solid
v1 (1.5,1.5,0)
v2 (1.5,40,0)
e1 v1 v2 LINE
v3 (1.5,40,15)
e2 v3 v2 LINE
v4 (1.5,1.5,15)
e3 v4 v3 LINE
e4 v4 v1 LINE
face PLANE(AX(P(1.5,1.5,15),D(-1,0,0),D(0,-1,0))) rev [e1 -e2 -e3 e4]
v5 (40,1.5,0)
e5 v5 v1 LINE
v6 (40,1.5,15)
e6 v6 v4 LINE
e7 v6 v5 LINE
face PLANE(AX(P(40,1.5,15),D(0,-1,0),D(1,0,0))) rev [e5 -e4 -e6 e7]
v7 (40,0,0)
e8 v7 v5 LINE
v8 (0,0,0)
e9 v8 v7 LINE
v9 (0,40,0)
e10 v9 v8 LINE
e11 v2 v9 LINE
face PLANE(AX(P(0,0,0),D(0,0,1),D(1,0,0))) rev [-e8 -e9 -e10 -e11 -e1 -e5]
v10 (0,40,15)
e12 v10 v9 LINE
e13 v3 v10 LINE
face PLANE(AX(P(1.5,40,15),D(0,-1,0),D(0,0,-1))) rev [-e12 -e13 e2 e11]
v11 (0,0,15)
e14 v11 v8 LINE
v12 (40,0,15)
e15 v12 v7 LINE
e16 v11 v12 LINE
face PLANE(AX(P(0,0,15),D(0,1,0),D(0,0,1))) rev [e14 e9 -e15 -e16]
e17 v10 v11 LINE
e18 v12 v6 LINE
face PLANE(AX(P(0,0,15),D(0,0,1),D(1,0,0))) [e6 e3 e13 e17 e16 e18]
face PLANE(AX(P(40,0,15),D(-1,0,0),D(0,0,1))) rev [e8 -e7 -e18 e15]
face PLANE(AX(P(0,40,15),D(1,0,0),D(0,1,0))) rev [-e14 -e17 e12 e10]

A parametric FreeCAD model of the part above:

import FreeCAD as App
import Part
import Sketcher
Q = App.Units.Quantity


def add_polygon(sketch, points):
    """Adds a closed chain of lines whose ends are joined by coincident constraints."""
    first, n = sketch.GeometryCount, len(points)
    for a, b in zip(points, points[1:] + points[:1]):
        sketch.addGeometry(Part.LineSegment(App.Vector(*a, 0), App.Vector(*b, 0)), False)
    for i in range(n):
        sketch.addConstraint(Sketcher.Constraint("Coincident", first + i, 2, first + (i + 1) % n, 1))

doc = App.newDocument("Part")
params = doc.addObject("Spreadsheet::Sheet", "Params")
for row, (alias, value) in enumerate([
    ("sketch1_width", "40 mm"),
    ("sketch1_width2", "38.5 mm"),
    ("pad1_length", "15 mm"),
], start=1):
    params.set(f"A{row}", alias)
    params.set(f"B{row}", "=" + value)
    params.setAlias(f"B{row}", alias)

body = doc.addObject("PartDesign::Body", "Body")

# Sketch on XY plane
sketch1 = body.newObject("Sketcher::SketchObject", "Sketch")
sketch1.AttachmentSupport = (doc.getObject("XY_Plane"), [""])
sketch1.MapMode = "FlatFace"
add_polygon(sketch1, [(0, 0), (40, 0), (40, 1.5), (1.5, 1.5), (1.5, 40), (0, 40)])  # lines 0-5
sketch1.addConstraint([
    Sketcher.Constraint("Horizontal", 0),
    Sketcher.Constraint("Vertical", 1),
    Sketcher.Constraint("Horizontal", 2),
    Sketcher.Constraint("Vertical", 3),
    Sketcher.Constraint("Horizontal", 4),
    Sketcher.Constraint("Vertical", 5),
    Sketcher.Constraint("Coincident", 5, 2, -1, 1),
    Sketcher.Constraint("Equal", 4, 1),
    Sketcher.Constraint("Equal", 2, 3),
    Sketcher.Constraint("DistanceX", 0, 1, 0, 2, Q("40 mm")),
    Sketcher.Constraint("DistanceX", 2, 2, 2, 1, Q("38.5 mm")),
])
sketch1.setExpression("Constraints[15]", "Params.sketch1_width")
sketch1.setExpression("Constraints[16]", "Params.sketch1_width2")
pad1 = body.newObject("PartDesign::Pad", "Pad")
pad1.Profile = sketch1
pad1.setExpression("Length", "Params.pad1_length")

doc.recompute()
